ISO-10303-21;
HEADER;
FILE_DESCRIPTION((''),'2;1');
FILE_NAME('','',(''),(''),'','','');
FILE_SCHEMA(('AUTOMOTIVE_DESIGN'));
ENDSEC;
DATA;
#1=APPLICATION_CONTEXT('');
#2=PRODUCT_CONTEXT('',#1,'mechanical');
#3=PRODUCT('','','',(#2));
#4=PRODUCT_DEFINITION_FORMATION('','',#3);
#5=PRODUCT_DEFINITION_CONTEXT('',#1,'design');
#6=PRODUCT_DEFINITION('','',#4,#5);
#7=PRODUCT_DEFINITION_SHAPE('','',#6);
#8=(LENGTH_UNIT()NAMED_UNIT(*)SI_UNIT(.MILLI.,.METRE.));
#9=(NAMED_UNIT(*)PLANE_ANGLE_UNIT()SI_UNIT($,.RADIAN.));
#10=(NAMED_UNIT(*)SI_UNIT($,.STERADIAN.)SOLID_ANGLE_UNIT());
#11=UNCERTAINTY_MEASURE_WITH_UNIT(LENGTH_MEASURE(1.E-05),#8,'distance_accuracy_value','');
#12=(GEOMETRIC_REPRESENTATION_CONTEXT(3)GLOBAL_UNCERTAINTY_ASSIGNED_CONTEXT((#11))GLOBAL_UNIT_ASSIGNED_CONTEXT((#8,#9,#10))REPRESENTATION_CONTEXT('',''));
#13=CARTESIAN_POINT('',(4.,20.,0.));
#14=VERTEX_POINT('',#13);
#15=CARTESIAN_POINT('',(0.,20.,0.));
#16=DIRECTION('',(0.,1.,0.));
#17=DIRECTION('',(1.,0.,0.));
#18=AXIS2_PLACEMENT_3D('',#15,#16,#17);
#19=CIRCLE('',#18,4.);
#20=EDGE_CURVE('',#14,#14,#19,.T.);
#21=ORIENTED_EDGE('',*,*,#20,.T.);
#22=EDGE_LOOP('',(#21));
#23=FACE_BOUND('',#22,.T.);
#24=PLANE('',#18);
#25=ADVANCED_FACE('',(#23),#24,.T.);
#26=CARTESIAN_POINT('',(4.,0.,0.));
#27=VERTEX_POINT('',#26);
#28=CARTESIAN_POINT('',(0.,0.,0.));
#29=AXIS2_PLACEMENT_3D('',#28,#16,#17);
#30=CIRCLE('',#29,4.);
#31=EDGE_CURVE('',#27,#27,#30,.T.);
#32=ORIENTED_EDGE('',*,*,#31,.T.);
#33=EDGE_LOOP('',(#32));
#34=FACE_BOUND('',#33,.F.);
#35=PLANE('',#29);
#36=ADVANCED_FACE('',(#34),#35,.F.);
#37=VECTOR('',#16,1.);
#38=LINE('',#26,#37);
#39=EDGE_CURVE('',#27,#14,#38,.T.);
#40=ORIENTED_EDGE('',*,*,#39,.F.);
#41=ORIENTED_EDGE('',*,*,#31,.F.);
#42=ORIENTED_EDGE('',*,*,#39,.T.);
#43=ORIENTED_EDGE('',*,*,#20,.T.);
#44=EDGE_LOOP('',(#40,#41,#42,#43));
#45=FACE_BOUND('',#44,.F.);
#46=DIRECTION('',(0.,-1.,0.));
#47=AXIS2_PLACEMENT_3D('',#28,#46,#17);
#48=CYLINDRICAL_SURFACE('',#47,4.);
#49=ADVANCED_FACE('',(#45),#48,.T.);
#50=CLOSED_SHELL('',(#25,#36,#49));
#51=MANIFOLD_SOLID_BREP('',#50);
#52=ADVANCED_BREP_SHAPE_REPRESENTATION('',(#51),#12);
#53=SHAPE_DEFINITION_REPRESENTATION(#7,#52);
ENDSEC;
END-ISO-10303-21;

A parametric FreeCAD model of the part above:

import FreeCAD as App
import Part
import Sketcher

V = App.Vector

doc = App.newDocument("Part")
body = doc.addObject("PartDesign::Body", "Body")

# Sketch on XZ plane
sketch1 = body.newObject("Sketcher::SketchObject", "Sketch")
sketch1.AttachmentSupport = (doc.getObject("XZ_Plane"), [""])
sketch1.MapMode = "FlatFace"
sketch1.addGeometry(Part.Circle(V(0, 0, 0), V(0, 0, 1), 4), False)
sketch1.addConstraint([
    Sketcher.Constraint("Coincident", 0, 3, -1, 1),
    Sketcher.Constraint("Diameter", 0, 8.0),
])
pad1 = body.newObject("PartDesign::Pad", "Pad")
pad1.Profile = sketch1
pad1.Length = 20
pad1.Reversed = True

doc.recompute()
